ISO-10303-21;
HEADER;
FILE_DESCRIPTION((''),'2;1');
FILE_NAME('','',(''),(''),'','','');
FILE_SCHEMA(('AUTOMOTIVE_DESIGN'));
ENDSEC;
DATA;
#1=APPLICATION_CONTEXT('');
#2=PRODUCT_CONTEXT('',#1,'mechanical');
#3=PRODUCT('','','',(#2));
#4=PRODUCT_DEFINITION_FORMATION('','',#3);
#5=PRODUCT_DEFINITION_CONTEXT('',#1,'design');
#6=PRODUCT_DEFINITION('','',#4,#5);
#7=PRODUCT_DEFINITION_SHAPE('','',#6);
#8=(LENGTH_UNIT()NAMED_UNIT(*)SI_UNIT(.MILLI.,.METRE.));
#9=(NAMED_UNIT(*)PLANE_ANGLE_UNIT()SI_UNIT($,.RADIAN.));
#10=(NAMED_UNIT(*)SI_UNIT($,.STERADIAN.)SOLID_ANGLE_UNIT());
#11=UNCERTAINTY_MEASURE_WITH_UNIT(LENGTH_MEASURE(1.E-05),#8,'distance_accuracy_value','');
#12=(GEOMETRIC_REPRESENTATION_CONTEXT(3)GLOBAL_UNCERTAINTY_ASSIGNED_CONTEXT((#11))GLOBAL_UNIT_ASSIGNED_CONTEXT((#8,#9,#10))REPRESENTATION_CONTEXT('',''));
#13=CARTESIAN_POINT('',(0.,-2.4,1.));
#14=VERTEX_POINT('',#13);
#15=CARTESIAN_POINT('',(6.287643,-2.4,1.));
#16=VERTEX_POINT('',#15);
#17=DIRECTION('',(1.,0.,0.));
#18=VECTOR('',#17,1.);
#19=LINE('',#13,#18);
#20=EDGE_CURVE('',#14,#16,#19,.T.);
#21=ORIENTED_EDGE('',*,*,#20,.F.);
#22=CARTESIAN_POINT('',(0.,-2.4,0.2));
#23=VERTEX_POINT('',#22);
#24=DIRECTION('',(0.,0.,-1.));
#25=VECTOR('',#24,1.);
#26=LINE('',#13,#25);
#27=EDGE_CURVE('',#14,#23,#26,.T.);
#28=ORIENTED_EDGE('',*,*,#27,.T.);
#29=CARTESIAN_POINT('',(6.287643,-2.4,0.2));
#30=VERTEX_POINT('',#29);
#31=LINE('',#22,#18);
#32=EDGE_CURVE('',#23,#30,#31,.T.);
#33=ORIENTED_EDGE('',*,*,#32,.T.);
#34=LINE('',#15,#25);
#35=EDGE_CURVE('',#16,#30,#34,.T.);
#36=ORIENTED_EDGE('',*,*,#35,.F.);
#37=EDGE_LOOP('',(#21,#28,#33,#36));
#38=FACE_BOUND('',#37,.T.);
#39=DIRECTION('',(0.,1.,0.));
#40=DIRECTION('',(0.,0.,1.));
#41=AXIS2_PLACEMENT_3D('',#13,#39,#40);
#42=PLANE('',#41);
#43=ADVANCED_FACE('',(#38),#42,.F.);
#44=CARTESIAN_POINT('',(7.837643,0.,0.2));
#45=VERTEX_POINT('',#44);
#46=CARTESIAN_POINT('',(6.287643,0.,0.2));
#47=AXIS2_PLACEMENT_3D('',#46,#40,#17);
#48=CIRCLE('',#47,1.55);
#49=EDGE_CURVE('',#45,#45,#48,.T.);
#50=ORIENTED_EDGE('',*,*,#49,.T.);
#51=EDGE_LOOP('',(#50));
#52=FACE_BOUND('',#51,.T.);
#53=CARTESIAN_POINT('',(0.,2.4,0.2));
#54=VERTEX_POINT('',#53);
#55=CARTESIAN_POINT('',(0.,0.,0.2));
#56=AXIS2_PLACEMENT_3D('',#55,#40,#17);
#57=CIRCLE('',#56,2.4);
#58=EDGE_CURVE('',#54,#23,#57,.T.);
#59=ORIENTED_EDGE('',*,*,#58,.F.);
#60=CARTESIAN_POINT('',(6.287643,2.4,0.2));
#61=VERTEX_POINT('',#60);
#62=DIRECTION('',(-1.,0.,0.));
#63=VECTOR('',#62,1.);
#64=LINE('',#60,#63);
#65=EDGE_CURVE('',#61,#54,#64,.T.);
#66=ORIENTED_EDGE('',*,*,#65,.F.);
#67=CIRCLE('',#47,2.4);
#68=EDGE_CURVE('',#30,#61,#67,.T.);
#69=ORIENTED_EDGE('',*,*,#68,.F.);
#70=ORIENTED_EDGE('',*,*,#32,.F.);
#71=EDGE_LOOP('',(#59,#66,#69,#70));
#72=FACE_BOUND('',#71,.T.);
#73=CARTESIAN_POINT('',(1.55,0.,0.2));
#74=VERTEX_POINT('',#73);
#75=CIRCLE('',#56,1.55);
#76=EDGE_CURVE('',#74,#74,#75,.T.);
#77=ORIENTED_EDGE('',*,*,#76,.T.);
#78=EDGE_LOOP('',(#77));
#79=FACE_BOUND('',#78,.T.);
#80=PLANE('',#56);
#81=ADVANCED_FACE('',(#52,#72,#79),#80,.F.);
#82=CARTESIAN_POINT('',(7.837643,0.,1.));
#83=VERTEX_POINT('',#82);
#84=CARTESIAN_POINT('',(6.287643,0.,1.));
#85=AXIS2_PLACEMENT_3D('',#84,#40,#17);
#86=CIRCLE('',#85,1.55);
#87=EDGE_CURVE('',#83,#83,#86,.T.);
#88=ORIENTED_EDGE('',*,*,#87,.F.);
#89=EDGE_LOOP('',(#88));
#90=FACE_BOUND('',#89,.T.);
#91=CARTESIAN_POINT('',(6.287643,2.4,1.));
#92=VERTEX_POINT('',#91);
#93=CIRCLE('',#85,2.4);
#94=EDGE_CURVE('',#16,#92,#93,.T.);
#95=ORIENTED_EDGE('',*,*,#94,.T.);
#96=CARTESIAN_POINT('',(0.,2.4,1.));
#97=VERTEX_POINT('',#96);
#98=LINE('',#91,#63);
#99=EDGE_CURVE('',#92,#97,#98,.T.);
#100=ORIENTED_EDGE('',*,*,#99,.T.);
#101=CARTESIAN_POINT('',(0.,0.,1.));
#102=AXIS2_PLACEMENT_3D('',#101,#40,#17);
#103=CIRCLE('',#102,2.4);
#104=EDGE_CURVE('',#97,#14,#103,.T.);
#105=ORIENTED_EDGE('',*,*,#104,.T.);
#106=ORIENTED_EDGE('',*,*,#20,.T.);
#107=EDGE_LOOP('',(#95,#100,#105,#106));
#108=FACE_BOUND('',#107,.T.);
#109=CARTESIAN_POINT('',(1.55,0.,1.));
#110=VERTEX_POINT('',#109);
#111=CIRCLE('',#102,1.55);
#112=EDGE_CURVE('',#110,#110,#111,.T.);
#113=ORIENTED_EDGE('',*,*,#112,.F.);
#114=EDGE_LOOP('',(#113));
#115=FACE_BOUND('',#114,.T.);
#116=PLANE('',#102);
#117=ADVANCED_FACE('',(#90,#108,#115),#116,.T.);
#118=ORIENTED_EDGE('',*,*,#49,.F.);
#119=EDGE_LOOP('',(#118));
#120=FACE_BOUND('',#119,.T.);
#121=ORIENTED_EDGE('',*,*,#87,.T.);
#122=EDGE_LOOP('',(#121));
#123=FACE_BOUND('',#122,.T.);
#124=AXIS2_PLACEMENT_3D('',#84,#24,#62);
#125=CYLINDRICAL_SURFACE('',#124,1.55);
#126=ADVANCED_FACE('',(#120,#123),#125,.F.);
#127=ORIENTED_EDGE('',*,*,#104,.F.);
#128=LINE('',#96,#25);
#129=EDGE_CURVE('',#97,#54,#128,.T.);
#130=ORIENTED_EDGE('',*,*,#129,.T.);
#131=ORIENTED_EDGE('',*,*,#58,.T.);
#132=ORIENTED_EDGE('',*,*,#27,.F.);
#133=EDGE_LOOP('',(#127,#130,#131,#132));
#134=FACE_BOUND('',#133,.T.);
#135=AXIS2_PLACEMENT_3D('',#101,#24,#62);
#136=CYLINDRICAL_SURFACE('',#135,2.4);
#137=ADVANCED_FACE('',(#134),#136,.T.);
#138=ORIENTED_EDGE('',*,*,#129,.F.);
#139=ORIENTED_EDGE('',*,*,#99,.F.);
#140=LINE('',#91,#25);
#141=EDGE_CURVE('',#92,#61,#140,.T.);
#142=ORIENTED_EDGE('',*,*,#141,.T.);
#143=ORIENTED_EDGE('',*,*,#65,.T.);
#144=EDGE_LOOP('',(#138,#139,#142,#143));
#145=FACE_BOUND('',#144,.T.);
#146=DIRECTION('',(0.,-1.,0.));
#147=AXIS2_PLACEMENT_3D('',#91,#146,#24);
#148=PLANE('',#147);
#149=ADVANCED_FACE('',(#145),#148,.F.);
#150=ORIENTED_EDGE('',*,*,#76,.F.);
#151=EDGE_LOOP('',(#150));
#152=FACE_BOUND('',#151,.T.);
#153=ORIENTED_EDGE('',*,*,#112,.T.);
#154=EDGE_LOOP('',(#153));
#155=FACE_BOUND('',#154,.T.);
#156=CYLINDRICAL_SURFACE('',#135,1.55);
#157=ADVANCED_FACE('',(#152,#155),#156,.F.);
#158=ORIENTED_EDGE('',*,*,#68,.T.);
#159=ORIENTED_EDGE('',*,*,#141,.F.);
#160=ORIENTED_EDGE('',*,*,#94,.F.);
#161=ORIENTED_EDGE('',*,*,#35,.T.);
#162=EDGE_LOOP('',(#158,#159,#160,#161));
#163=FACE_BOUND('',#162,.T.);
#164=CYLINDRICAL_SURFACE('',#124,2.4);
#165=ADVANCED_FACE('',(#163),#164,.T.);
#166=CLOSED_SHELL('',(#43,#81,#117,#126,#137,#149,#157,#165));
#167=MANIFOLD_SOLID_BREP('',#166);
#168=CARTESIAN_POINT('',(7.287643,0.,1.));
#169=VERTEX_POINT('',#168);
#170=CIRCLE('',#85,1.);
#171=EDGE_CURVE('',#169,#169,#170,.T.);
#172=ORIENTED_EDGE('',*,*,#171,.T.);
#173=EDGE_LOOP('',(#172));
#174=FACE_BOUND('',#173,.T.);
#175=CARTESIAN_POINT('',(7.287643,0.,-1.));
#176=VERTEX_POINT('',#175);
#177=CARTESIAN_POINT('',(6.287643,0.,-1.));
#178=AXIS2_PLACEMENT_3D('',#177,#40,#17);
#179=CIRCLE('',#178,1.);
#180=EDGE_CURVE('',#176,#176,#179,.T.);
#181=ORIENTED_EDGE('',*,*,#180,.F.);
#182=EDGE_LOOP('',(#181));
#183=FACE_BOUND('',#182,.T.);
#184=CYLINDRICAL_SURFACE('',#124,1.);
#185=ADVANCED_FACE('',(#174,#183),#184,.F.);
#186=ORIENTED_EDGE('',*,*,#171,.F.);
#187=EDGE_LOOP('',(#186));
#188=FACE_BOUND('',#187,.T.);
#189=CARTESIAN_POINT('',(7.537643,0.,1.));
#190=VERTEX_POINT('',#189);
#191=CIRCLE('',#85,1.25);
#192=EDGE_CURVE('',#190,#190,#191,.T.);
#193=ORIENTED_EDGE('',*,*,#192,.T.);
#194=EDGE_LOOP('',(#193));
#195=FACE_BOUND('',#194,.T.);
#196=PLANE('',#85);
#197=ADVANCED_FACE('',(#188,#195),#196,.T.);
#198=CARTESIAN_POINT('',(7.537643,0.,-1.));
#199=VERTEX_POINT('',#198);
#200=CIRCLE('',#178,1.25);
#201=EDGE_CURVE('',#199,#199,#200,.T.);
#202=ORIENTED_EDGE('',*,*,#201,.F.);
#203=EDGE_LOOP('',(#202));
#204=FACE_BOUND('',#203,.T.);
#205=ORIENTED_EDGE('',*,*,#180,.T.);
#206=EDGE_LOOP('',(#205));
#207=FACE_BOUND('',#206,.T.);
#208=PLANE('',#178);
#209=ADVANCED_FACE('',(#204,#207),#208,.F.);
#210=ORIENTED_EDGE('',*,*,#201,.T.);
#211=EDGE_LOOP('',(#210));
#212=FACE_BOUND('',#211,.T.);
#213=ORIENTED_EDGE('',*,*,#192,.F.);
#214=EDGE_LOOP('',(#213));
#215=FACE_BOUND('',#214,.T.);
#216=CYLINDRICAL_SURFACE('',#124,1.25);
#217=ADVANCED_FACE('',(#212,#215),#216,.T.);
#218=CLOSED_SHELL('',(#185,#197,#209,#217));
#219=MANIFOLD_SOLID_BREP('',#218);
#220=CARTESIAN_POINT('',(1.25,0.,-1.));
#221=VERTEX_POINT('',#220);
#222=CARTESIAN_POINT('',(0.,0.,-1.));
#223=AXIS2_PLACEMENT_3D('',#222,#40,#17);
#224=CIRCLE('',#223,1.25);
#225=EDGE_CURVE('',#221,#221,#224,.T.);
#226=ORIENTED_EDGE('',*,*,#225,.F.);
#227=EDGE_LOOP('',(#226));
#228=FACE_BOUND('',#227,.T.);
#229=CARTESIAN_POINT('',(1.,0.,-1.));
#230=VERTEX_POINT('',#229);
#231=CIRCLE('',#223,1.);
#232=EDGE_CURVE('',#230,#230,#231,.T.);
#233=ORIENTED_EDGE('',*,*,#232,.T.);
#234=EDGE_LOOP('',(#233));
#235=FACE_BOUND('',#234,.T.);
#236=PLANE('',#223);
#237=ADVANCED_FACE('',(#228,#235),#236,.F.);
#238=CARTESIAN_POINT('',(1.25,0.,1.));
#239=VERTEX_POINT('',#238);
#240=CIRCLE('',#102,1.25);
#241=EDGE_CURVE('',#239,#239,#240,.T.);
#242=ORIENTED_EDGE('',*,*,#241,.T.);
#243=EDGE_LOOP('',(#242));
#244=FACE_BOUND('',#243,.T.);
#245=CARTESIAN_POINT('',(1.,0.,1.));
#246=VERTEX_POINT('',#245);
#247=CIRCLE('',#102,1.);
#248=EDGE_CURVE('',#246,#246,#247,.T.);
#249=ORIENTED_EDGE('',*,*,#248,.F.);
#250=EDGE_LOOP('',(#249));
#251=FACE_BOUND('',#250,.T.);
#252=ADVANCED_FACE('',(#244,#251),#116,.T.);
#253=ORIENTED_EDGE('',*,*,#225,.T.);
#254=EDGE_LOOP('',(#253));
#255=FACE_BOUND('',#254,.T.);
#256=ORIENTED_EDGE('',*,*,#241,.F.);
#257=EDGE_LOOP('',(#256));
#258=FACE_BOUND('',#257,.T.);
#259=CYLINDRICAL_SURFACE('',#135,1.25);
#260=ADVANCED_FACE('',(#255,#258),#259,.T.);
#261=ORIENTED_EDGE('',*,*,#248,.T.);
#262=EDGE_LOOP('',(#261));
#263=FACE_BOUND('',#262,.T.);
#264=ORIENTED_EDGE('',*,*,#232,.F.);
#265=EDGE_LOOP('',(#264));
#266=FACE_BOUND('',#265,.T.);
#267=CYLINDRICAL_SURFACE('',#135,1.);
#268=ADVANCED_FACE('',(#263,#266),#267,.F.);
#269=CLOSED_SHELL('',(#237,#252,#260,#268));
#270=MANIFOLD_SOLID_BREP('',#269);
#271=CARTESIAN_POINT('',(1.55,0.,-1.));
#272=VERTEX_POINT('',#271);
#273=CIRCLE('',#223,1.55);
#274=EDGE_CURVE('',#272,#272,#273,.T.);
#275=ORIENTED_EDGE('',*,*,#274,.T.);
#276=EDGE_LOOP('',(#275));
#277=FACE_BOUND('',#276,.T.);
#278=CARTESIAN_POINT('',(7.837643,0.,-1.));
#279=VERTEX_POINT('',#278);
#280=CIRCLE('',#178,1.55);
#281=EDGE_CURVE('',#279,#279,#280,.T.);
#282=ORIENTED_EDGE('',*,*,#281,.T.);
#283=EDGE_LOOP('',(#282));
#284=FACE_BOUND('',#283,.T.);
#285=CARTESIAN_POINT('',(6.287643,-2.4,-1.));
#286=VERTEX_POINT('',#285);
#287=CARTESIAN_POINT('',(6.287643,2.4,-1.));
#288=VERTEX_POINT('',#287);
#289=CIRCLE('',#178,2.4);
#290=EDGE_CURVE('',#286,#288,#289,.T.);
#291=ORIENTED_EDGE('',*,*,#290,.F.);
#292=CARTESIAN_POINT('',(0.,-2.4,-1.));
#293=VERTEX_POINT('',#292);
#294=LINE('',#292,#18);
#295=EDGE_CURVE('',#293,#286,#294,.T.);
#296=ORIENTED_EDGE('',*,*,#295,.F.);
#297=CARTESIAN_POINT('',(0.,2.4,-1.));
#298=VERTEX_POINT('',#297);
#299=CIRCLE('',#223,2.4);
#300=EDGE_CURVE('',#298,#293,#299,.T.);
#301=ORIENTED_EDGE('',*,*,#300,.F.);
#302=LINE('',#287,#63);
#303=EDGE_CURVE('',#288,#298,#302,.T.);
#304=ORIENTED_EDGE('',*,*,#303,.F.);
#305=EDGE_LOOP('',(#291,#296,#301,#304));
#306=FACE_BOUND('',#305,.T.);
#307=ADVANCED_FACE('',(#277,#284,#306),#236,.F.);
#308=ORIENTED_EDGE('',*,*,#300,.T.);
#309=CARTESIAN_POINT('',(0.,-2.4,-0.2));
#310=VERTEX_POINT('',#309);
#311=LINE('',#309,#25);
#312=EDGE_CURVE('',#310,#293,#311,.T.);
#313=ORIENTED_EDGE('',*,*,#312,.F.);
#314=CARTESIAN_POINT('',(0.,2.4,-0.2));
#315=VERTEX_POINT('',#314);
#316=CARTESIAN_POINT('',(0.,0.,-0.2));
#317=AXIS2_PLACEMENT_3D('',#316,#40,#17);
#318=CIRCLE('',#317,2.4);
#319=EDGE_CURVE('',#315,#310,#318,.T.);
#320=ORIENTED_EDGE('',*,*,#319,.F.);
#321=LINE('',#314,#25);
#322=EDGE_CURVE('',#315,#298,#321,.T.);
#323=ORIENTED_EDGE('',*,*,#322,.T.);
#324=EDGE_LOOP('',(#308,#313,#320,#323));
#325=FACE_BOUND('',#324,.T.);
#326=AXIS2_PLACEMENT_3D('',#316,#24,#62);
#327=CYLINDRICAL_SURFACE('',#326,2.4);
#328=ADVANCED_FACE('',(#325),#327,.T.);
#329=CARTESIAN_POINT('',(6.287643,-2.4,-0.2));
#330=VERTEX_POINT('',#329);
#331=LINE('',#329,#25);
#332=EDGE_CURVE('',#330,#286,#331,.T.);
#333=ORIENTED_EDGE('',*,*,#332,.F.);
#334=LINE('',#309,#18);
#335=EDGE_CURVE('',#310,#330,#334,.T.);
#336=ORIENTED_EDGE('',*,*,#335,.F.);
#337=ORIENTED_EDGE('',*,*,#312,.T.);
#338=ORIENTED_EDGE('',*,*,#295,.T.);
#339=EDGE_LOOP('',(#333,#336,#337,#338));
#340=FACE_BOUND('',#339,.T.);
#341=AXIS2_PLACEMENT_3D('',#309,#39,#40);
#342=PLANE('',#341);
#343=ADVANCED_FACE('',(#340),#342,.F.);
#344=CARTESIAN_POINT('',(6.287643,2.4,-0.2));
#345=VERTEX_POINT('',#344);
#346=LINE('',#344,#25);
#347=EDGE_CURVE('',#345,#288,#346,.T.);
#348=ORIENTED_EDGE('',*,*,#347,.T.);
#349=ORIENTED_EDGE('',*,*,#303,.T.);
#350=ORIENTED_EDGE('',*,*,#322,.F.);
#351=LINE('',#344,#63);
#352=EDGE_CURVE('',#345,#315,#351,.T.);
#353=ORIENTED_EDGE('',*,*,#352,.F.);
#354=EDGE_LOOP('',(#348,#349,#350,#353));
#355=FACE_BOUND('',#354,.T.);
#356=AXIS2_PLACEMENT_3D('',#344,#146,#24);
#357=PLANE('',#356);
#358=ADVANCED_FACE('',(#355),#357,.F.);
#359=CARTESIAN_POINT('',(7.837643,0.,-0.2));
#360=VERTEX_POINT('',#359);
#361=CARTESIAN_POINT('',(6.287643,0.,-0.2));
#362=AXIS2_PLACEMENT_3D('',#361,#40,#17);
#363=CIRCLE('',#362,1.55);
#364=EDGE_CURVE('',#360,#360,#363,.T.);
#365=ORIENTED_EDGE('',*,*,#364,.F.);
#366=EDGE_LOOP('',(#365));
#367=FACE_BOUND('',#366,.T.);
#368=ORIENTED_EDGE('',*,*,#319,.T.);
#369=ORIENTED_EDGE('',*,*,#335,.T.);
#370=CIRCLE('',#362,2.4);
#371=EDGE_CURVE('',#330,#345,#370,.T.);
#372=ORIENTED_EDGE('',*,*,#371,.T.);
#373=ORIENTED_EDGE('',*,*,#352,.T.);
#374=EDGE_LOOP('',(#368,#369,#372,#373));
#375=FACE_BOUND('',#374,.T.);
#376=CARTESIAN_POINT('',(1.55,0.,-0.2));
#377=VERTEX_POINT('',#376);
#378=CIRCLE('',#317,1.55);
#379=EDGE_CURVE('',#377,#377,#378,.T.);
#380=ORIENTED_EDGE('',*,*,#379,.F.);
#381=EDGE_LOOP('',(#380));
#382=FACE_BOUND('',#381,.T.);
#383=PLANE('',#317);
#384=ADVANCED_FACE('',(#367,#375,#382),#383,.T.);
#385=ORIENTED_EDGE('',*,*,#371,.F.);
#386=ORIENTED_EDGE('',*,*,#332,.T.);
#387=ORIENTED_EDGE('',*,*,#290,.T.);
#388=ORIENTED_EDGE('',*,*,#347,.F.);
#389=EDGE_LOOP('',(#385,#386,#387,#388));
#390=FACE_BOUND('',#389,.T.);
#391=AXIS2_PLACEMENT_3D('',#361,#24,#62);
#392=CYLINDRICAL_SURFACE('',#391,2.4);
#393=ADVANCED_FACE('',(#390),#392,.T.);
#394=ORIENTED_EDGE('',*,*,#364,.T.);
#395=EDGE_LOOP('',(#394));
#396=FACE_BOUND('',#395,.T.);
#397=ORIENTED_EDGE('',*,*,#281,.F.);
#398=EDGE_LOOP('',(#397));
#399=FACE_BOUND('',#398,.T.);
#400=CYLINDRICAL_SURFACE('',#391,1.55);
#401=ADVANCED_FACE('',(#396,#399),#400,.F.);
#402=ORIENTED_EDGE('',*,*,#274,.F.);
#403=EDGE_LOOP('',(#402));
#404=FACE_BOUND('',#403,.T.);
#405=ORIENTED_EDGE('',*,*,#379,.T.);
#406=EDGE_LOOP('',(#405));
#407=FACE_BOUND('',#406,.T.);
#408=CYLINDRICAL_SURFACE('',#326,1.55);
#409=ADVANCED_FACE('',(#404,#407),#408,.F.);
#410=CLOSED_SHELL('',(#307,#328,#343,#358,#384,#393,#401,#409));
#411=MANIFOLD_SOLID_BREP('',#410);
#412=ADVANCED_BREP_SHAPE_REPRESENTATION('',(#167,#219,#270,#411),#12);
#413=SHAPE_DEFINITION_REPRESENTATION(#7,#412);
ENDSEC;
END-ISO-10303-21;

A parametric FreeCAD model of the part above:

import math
import FreeCAD as App
import Part
import Sketcher

V = App.Vector

doc = App.newDocument("Part")
body = doc.addObject("PartDesign::Body", "Body")

sketch1 = body.newObject("Sketcher::SketchObject", "Sketch")
sketch1.AttachmentSupport = (doc.getObject("XY_Plane"), [""])
sketch1.MapMode = "FlatFace"
sketch1.AttachmentOffset = App.Placement(V(0, 0, 0.2), App.Rotation())
sketch1.addGeometry([
    Part.LineSegment(V(0, -2.4, 0), V(6.3, -2.4, 0)),
    Part.ArcOfCircle(Part.Circle(V(6.3, 0, 0), V(0, 0, 1), 2.4), math.radians(-90), math.radians(90)),
    Part.LineSegment(V(6.3, 2.4, 0), V(0, 2.4, 0)),
    Part.ArcOfCircle(Part.Circle(V(0, 0, 0), V(0, 0, 1), 2.4), math.radians(90), math.radians(270)),
    Part.Circle(V(0, 0, 0), V(0, 0, 1), 1.6),
    Part.Circle(V(6.3, 0, 0), V(0, 0, 1), 1.6),
], False)
sketch1.addConstraint([
    Sketcher.Constraint("Tangent", 0, 2, 1, 1),
    Sketcher.Constraint("Tangent", 1, 2, 2, 1),
    Sketcher.Constraint("Tangent", 2, 2, 3, 1),
    Sketcher.Constraint("Tangent", 3, 2, 0, 1),
    Sketcher.Constraint("Horizontal", 0),
    Sketcher.Constraint("Horizontal", 2),
    Sketcher.Constraint("Coincident", 3, 3, -1, 1),
    Sketcher.Constraint("Coincident", 4, 3, -1, 1),
    Sketcher.Constraint("Coincident", 5, 3, 1, 3),
    Sketcher.Constraint("Equal", 4, 5),
    Sketcher.Constraint("Diameter", 4, 3.1),
    Sketcher.Constraint("Radius", 1, 2.4),
    Sketcher.Constraint("DistanceX", 0, 1, 0, 2, 6.287643),
])
pad1 = body.newObject("PartDesign::Pad", "Pad")
pad1.Profile = sketch1
pad1.Length = 0.8
body2 = doc.addObject("PartDesign::Body", "Body001")

sketch2 = body2.newObject("Sketcher::SketchObject", "Sketch001")
sketch2.AttachmentSupport = (doc.getObject("XY_Plane001"), [""])
sketch2.MapMode = "FlatFace"
sketch2.AttachmentOffset = App.Placement(V(0, 0, -1), App.Rotation())
sketch2.addGeometry([
    Part.LineSegment(V(0, -2.4, 0), V(6.3, -2.4, 0)),
    Part.ArcOfCircle(Part.Circle(V(6.3, 0, 0), V(0, 0, 1), 2.4), math.radians(-90), math.radians(90)),
    Part.LineSegment(V(6.3, 2.4, 0), V(0, 2.4, 0)),
    Part.ArcOfCircle(Part.Circle(V(0, 0, 0), V(0, 0, 1), 2.4), math.radians(90), math.radians(270)),
    Part.Circle(V(0, 0, 0), V(0, 0, 1), 1.6),
    Part.Circle(V(6.3, 0, 0), V(0, 0, 1), 1.6),
], False)
sketch2.addConstraint([
    Sketcher.Constraint("Tangent", 0, 2, 1, 1),
    Sketcher.Constraint("Tangent", 1, 2, 2, 1),
    Sketcher.Constraint("Tangent", 2, 2, 3, 1),
    Sketcher.Constraint("Tangent", 3, 2, 0, 1),
    Sketcher.Constraint("Horizontal", 0),
    Sketcher.Constraint("Horizontal", 2),
    Sketcher.Constraint("Coincident", 3, 3, -1, 1),
    Sketcher.Constraint("Coincident", 4, 3, -1, 1),
    Sketcher.Constraint("Coincident", 5, 3, 1, 3),
    Sketcher.Constraint("Equal", 4, 5),
    Sketcher.Constraint("Diameter", 4, 3.1),
    Sketcher.Constraint("Radius", 1, 2.4),
    Sketcher.Constraint("DistanceX", 0, 1, 0, 2, 6.287643),
])
pad2 = body2.newObject("PartDesign::Pad", "Pad001")
pad2.Profile = sketch2
pad2.Length = 0.8
body3 = doc.addObject("PartDesign::Body", "Body002")

sketch3 = body3.newObject("Sketcher::SketchObject", "Sketch002")
sketch3.AttachmentSupport = (doc.getObject("XY_Plane002"), [""])
sketch3.MapMode = "FlatFace"
sketch3.AttachmentOffset = App.Placement(V(0, 0, -1), App.Rotation())
sketch3.addGeometry([
    Part.Circle(V(0, 0, 0), V(0, 0, 1), 1.2),
    Part.Circle(V(0, 0, 0), V(0, 0, 1), 1),
], False)
sketch3.addConstraint([
    Sketcher.Constraint("Coincident", 0, 3, -1, 1),
    Sketcher.Constraint("Coincident", 1, 3, -1, 1),
    Sketcher.Constraint("Diameter", 1, 2.0),
    Sketcher.Constraint("Diameter", 0, 2.5),
])
pad3 = body3.newObject("PartDesign::Pad", "Pad002")
pad3.Profile = sketch3
pad3.Length = 2
body4 = doc.addObject("PartDesign::Body", "Body003")

sketch4 = body4.newObject("Sketcher::SketchObject", "Sketch003")
sketch4.AttachmentSupport = (doc.getObject("XY_Plane003"), [""])
sketch4.MapMode = "FlatFace"
sketch4.AttachmentOffset = App.Placement(V(0, 0, -1), App.Rotation())
sketch4.addGeometry([
    Part.Circle(V(6.3, 0, 0), V(0, 0, 1), 1.2),
    Part.Circle(V(6.3, 0, 0), V(0, 0, 1), 1),
], False)
sketch4.addConstraint([
    Sketcher.Constraint("Coincident", 1, 3, 0, 3),
    Sketcher.Constraint("PointOnObject", 0, 3, -1),
    Sketcher.Constraint("Diameter", 1, 2.0),
    Sketcher.Constraint("Diameter", 0, 2.5),
    Sketcher.Constraint("DistanceX", -1, 1, 0, 3, 6.287643),
])
pad4 = body4.newObject("PartDesign::Pad", "Pad003")
pad4.Profile = sketch4
pad4.Length = 2

doc.recompute()
